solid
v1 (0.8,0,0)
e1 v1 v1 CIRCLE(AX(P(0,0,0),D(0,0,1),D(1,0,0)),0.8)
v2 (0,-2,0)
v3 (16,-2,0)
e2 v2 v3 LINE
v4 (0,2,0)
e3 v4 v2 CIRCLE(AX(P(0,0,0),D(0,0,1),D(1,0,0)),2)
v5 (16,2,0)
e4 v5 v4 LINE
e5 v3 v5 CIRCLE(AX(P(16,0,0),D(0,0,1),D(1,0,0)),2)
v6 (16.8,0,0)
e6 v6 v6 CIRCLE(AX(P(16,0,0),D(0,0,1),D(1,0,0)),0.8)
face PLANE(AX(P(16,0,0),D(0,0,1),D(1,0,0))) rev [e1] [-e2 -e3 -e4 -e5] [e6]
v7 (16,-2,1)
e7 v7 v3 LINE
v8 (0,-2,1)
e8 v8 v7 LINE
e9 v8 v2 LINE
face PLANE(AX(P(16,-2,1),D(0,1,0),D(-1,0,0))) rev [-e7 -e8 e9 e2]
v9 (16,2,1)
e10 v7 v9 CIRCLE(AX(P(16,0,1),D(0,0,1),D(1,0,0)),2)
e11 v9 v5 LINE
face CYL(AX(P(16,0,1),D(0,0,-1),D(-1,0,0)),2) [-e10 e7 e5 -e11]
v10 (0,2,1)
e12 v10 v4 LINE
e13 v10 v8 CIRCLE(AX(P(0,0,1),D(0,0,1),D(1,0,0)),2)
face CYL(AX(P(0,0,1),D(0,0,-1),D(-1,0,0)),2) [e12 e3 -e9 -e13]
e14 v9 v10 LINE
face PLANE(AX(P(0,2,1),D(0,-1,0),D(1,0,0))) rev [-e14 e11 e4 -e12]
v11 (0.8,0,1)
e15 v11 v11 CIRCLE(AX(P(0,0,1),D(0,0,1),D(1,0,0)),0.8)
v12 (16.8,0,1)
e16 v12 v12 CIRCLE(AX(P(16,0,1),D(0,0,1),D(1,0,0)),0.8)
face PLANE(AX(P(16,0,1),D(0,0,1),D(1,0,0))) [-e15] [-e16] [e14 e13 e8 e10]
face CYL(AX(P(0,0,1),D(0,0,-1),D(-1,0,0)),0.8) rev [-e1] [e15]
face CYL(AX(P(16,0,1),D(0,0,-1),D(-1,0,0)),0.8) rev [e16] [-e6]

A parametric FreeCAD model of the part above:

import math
import FreeCAD as App
import Part
import Sketcher
from FreeCAD import Vector

doc = App.newDocument("Part")
body = doc.addObject("PartDesign::Body", "Body")

# Sketch on XY plane
sketch1 = doc.addObject("Sketcher::SketchObject", "Sketch")
body.addObject(sketch1)
sketch1.AttachmentSupport = (doc.XY_Plane, [""])
sketch1.MapMode = "FlatFace"
sketch1.addGeometry(Part.LineSegment(Vector(0, -2, 0), Vector(16, -2, 0)), False)
sketch1.addGeometry(Part.ArcOfCircle(Part.Circle(Vector(16, 0, 0), Vector(0, 0, 1), 2), math.radians(-90), math.radians(90)), False)
sketch1.addGeometry(Part.LineSegment(Vector(16, 2, 0), Vector(0, 2, 0)), False)
sketch1.addGeometry(Part.ArcOfCircle(Part.Circle(Vector(0, 0, 0), Vector(0, 0, 1), 2), math.radians(90), math.radians(270)), False)
sketch1.addGeometry(Part.Circle(Vector(16, 0, 0), Vector(0, 0, 1), 0.8), False)
sketch1.addGeometry(Part.Circle(Vector(0, 0, 0), Vector(0, 0, 1), 0.8), False)
sketch1.addConstraint(Sketcher.Constraint("Tangent", 0, 2, 1, 1))
sketch1.addConstraint(Sketcher.Constraint("Tangent", 1, 2, 2, 1))
sketch1.addConstraint(Sketcher.Constraint("Tangent", 2, 2, 3, 1))
sketch1.addConstraint(Sketcher.Constraint("Tangent", 3, 2, 0, 1))
sketch1.addConstraint(Sketcher.Constraint("Horizontal", 0))
sketch1.addConstraint(Sketcher.Constraint("Horizontal", 2))
sketch1.addConstraint(Sketcher.Constraint("Coincident", 3, 3, -1, 1))
sketch1.addConstraint(Sketcher.Constraint("Coincident", 5, 3, -1, 1))
sketch1.addConstraint(Sketcher.Constraint("Coincident", 4, 3, 1, 3))
sketch1.addConstraint(Sketcher.Constraint("Equal", 4, 5))
sketch1.addConstraint(Sketcher.Constraint("Radius", 1, 2.0))
sketch1.addConstraint(Sketcher.Constraint("Diameter", 4, 1.6))
sketch1.addConstraint(Sketcher.Constraint("DistanceX", 0, 1, 0, 2, 16.0))
pad1 = doc.addObject("PartDesign::Pad", "Pad")
body.addObject(pad1)
pad1.Profile = sketch1
pad1.Length = 1

doc.recompute()
